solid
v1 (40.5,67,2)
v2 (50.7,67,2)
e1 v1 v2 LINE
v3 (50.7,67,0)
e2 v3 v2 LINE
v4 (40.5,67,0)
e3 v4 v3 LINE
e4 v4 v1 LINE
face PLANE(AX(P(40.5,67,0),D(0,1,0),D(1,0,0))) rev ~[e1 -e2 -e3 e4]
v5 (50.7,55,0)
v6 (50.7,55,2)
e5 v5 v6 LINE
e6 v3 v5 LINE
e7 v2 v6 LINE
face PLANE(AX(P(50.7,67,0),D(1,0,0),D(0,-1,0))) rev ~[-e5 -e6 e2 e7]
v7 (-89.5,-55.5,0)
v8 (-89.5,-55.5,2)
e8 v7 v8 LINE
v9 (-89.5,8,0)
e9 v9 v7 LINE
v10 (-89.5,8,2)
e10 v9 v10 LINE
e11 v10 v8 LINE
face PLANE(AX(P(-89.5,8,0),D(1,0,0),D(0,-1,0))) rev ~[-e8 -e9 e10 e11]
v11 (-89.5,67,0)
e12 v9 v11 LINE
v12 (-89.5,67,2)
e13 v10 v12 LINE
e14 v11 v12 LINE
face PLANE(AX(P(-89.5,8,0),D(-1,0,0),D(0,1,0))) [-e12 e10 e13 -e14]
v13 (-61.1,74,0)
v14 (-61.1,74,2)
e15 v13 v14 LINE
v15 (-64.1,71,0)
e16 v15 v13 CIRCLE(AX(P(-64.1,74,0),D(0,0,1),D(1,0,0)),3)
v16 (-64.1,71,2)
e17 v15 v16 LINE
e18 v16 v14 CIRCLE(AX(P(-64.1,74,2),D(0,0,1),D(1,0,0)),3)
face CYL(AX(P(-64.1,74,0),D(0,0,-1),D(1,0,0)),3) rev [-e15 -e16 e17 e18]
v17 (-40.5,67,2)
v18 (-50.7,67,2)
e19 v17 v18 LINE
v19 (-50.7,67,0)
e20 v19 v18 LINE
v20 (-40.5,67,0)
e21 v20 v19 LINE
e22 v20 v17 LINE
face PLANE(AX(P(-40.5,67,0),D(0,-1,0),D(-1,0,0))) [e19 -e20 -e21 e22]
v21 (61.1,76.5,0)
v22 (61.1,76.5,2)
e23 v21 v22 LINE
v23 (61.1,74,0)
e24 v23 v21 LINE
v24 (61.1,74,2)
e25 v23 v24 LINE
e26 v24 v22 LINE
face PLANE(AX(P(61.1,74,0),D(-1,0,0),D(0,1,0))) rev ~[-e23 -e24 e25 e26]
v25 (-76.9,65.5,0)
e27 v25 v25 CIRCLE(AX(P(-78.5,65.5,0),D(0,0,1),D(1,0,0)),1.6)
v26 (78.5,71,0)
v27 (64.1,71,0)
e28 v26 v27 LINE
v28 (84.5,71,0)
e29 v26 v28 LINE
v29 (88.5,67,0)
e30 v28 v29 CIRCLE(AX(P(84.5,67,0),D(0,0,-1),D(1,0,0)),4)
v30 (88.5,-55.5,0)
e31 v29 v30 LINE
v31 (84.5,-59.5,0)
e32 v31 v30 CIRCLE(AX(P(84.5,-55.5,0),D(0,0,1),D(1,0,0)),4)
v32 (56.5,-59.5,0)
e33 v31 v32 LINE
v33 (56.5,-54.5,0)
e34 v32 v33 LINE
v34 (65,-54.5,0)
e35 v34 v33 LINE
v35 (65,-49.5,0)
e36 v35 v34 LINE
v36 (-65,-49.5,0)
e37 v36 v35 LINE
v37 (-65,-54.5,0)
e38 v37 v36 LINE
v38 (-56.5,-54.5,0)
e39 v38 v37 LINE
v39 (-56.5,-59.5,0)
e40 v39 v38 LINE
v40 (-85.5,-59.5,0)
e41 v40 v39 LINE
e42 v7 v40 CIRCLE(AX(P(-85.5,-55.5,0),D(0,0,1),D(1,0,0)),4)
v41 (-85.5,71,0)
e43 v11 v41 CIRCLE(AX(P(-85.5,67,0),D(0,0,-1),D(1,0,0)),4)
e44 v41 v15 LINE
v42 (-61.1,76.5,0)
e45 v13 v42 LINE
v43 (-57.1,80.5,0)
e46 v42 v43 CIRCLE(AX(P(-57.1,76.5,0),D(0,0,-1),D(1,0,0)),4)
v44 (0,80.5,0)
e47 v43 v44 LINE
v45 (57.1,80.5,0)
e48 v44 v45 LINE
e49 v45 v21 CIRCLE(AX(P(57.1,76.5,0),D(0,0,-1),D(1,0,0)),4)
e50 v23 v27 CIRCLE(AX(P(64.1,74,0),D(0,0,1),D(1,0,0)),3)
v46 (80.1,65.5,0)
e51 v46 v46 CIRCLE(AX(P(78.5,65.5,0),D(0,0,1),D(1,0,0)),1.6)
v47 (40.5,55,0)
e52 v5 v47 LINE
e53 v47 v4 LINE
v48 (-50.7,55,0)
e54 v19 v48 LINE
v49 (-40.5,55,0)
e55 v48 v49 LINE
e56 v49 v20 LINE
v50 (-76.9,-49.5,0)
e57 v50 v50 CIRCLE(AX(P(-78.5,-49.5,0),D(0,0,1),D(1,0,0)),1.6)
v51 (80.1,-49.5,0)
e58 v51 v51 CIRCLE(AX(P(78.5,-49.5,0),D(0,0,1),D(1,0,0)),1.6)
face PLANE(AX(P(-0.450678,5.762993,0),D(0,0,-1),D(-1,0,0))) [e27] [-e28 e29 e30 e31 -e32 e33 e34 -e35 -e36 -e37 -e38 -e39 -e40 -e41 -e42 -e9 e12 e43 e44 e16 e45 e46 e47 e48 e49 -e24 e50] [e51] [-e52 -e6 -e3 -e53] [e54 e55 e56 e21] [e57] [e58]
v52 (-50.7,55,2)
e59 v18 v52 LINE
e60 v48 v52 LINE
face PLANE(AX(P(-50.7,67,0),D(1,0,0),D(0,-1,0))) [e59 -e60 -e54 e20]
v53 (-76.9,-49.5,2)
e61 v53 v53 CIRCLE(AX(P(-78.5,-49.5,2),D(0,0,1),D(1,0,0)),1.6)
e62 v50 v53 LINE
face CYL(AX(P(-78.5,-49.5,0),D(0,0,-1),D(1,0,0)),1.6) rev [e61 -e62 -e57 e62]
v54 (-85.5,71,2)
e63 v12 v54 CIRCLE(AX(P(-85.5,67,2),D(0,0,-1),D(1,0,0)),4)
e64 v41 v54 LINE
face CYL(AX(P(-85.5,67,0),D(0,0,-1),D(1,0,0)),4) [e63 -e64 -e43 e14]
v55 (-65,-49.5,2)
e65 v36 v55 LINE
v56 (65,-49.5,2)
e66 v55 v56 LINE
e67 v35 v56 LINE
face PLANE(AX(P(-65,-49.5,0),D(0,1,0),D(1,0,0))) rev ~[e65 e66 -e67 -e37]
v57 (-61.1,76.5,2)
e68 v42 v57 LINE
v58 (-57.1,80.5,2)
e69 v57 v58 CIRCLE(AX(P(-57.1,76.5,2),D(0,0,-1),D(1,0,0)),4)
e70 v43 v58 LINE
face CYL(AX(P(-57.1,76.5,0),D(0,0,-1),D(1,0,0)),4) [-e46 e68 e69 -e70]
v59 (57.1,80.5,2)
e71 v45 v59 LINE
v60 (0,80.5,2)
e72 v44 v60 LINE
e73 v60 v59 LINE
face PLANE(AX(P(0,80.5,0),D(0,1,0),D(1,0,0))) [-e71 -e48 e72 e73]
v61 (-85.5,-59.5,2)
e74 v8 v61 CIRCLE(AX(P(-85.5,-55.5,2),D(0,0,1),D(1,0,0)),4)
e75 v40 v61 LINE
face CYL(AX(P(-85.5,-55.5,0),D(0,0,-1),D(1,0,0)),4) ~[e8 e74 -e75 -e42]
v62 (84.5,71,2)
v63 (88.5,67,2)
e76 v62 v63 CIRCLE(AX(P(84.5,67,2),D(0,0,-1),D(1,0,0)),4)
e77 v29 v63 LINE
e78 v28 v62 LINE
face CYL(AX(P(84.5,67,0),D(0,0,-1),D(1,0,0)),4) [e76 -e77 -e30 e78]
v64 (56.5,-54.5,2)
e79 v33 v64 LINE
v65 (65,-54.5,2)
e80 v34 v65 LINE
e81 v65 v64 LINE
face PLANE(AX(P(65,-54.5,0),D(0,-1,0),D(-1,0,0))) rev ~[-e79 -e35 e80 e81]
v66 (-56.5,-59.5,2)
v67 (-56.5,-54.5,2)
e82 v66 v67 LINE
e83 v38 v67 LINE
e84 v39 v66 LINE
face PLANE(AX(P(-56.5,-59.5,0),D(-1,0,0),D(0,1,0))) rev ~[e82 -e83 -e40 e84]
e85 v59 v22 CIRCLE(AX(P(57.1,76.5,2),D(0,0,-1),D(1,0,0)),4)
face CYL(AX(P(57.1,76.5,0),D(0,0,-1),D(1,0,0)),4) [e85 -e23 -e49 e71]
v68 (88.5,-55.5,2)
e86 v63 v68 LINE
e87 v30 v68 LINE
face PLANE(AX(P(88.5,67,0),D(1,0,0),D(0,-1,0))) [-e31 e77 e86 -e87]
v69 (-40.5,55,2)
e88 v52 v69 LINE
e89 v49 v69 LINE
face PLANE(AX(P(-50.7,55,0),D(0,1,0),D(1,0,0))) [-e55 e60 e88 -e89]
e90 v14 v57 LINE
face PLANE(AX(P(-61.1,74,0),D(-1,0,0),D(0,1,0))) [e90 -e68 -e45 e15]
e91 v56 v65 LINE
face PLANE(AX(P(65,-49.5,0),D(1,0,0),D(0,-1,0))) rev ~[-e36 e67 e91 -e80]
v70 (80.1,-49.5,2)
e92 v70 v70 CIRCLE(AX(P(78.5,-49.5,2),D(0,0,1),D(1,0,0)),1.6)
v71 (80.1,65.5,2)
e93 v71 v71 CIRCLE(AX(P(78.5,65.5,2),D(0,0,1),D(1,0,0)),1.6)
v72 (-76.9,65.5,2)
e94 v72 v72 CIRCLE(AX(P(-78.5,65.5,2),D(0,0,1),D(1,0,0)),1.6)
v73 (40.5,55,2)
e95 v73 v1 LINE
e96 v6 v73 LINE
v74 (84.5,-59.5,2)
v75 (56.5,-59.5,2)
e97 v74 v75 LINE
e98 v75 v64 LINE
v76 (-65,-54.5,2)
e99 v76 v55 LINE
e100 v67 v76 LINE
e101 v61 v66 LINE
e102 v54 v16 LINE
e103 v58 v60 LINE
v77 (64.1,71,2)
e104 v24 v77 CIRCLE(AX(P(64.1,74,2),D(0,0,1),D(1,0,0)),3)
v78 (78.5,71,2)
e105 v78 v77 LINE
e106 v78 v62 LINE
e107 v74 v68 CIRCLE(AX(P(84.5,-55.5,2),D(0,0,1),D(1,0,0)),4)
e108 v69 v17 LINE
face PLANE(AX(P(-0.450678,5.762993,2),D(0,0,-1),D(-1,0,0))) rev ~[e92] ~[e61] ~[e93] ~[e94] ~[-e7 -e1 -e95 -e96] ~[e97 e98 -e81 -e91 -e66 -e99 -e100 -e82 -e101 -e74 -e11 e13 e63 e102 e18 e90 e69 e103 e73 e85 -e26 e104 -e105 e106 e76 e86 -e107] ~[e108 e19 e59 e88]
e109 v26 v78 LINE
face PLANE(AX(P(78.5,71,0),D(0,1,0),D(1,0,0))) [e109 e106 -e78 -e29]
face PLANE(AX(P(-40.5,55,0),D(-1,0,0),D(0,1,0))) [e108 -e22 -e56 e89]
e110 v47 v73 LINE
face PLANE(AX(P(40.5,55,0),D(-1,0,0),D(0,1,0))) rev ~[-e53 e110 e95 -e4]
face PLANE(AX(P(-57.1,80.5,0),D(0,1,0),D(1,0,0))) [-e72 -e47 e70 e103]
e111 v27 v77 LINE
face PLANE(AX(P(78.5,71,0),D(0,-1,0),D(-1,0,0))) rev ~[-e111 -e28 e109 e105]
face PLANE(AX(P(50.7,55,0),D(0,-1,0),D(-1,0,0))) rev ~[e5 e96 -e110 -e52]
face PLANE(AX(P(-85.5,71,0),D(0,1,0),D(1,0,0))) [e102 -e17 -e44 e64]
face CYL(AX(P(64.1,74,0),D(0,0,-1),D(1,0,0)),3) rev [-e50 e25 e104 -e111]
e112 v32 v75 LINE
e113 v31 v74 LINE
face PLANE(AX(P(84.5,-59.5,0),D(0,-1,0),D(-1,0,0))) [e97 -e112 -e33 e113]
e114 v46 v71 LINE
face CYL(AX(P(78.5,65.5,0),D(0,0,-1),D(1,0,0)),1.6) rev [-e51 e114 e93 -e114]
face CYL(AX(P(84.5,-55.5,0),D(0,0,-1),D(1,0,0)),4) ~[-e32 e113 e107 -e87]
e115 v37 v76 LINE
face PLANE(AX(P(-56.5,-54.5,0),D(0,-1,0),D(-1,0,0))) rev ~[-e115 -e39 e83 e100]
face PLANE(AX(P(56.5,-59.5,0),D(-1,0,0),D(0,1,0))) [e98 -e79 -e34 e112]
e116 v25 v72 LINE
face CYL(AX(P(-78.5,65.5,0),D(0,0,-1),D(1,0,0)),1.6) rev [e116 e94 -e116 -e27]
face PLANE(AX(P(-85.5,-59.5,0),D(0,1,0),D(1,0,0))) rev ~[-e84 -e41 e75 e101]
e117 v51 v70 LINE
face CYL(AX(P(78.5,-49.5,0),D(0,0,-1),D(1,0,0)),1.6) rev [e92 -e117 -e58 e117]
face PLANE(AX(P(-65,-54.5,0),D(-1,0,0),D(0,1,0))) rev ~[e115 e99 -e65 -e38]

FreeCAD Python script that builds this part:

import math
import FreeCAD as App
import Part
import Sketcher
from FreeCAD import Vector

doc = App.newDocument("Part")
body = doc.addObject("PartDesign::Body", "Body")

sketch1 = body.newObject("Sketcher::SketchObject", "Sketch")
sketch1.AttachmentSupport = (doc.getObject("XY_Plane"), [""])
sketch1.MapMode = "FlatFace"
sketch1.addGeometry([
    Part.ArcOfCircle(Part.Circle(Vector(-64.1, 74, 0), Vector(0, 0, 1), 3), math.radians(-90), math.radians(0)),
    Part.LineSegment(Vector(-64.1, 71, 0), Vector(-85.5, 71, 0)),
    Part.ArcOfCircle(Part.Circle(Vector(-85.5, 67, 0), Vector(0, 0, 1), 4), math.radians(90), math.radians(180)),
    Part.LineSegment(Vector(-89.5, 67, 0), Vector(-89.5, -55.5, 0)),
    Part.ArcOfCircle(Part.Circle(Vector(-85.5, -55.5, 0), Vector(0, 0, 1), 4), math.radians(180), math.radians(270)),
    Part.LineSegment(Vector(-85.5, -59.5, 0), Vector(-56.5, -59.5, 0)),
    Part.LineSegment(Vector(-56.5, -59.5, 0), Vector(-56.5, -54.5, 0)),
    Part.LineSegment(Vector(-56.5, -54.5, 0), Vector(-65, -54.5, 0)),
    Part.LineSegment(Vector(-65, -54.5, 0), Vector(-65, -49.5, 0)),
    Part.LineSegment(Vector(-65, -49.5, 0), Vector(65, -49.5, 0)),
    Part.LineSegment(Vector(65, -49.5, 0), Vector(65, -54.5, 0)),
    Part.LineSegment(Vector(65, -54.5, 0), Vector(56.5, -54.5, 0)),
    Part.LineSegment(Vector(56.5, -54.5, 0), Vector(56.5, -59.5, 0)),
    Part.LineSegment(Vector(56.5, -59.5, 0), Vector(84.5, -59.5, 0)),
    Part.ArcOfCircle(Part.Circle(Vector(84.5, -55.5, 0), Vector(0, 0, 1), 4), math.radians(-90), math.radians(0)),
    Part.LineSegment(Vector(88.5, -55.5, 0), Vector(88.5, 67, 0)),
    Part.ArcOfCircle(Part.Circle(Vector(84.5, 67, 0), Vector(0, 0, 1), 4), math.radians(0), math.radians(90)),
    Part.LineSegment(Vector(84.5, 71, 0), Vector(64.1, 71, 0)),
    Part.ArcOfCircle(Part.Circle(Vector(64.1, 74, 0), Vector(0, 0, 1), 3), math.radians(180), math.radians(270)),
    Part.LineSegment(Vector(61.1, 74, 0), Vector(61.1, 76.5, 0)),
    Part.ArcOfCircle(Part.Circle(Vector(57.1, 76.5, 0), Vector(0, 0, 1), 4), math.radians(0), math.radians(90)),
    Part.LineSegment(Vector(57.1, 80.5, 0), Vector(-57.1, 80.5, 0)),
    Part.ArcOfCircle(Part.Circle(Vector(-57.1, 76.5, 0), Vector(0, 0, 1), 4), math.radians(90), math.radians(180)),
    Part.LineSegment(Vector(-61.1, 76.5, 0), Vector(-61.1, 74, 0)),
    Part.Circle(Vector(-78.5, -49.5, 0), Vector(0, 0, 1), 1.6),
    Part.Circle(Vector(78.5, -49.5, 0), Vector(0, 0, 1), 1.6),
    Part.LineSegment(Vector(-40.5, 55, 0), Vector(-50.7, 55, 0)),
    Part.LineSegment(Vector(-50.7, 55, 0), Vector(-50.7, 67, 0)),
    Part.LineSegment(Vector(-50.7, 67, 0), Vector(-40.5, 67, 0)),
    Part.LineSegment(Vector(-40.5, 67, 0), Vector(-40.5, 55, 0)),
    Part.Circle(Vector(-78.5, 65.5, 0), Vector(0, 0, 1), 1.6),
    Part.LineSegment(Vector(50.7, 67, 0), Vector(50.7, 55, 0)),
    Part.LineSegment(Vector(50.7, 55, 0), Vector(40.5, 55, 0)),
    Part.LineSegment(Vector(40.5, 55, 0), Vector(40.5, 67, 0)),
    Part.LineSegment(Vector(40.5, 67, 0), Vector(50.7, 67, 0)),
    Part.Circle(Vector(78.5, 65.5, 0), Vector(0, 0, 1), 1.6),
], False)
sketch1.addConstraint([
    Sketcher.Constraint("Tangent", 0, 1, 1, 1),
    Sketcher.Constraint("Tangent", 1, 2, 2, 1),
    Sketcher.Constraint("Tangent", 2, 2, 3, 1),
    Sketcher.Constraint("Tangent", 3, 2, 4, 1),
    Sketcher.Constraint("Tangent", 4, 2, 5, 1),
    Sketcher.Constraint("Coincident", 5, 2, 6, 1),
    Sketcher.Constraint("Coincident", 6, 2, 7, 1),
    Sketcher.Constraint("Coincident", 7, 2, 8, 1),
    Sketcher.Constraint("Coincident", 8, 2, 9, 1),
    Sketcher.Constraint("Coincident", 9, 2, 10, 1),
    Sketcher.Constraint("Coincident", 10, 2, 11, 1),
    Sketcher.Constraint("Coincident", 11, 2, 12, 1),
    Sketcher.Constraint("Coincident", 12, 2, 13, 1),
    Sketcher.Constraint("Tangent", 13, 2, 14, 1),
    Sketcher.Constraint("Tangent", 14, 2, 15, 1),
    Sketcher.Constraint("Tangent", 15, 2, 16, 1),
    Sketcher.Constraint("Tangent", 16, 2, 17, 1),
    Sketcher.Constraint("Tangent", 17, 2, 18, 2),
    Sketcher.Constraint("Tangent", 18, 1, 19, 1),
    Sketcher.Constraint("Tangent", 19, 2, 20, 1),
    Sketcher.Constraint("Tangent", 20, 2, 21, 1),
    Sketcher.Constraint("Tangent", 21, 2, 22, 1),
    Sketcher.Constraint("Tangent", 22, 2, 23, 1),
    Sketcher.Constraint("Tangent", 23, 2, 0, 2),
    Sketcher.Constraint("Coincident", 26, 2, 27, 1),
    Sketcher.Constraint("Coincident", 27, 2, 28, 1),
    Sketcher.Constraint("Coincident", 28, 2, 29, 1),
    Sketcher.Constraint("Coincident", 29, 2, 26, 1),
    Sketcher.Constraint("Coincident", 31, 2, 32, 1),
    Sketcher.Constraint("Coincident", 32, 2, 33, 1),
    Sketcher.Constraint("Coincident", 33, 2, 34, 1),
    Sketcher.Constraint("Coincident", 34, 2, 31, 1),
    Sketcher.Constraint("Horizontal", 1),
    Sketcher.Constraint("Vertical", 3),
    Sketcher.Constraint("Horizontal", 5),
    Sketcher.Constraint("Vertical", 6),
    Sketcher.Constraint("Horizontal", 7),
    Sketcher.Constraint("Vertical", 8),
    Sketcher.Constraint("Horizontal", 9),
    Sketcher.Constraint("Vertical", 10),
    Sketcher.Constraint("Horizontal", 11),
    Sketcher.Constraint("Vertical", 12),
    Sketcher.Constraint("Horizontal", 13),
    Sketcher.Constraint("Vertical", 15),
    Sketcher.Constraint("Horizontal", 17),
    Sketcher.Constraint("Vertical", 19),
    Sketcher.Constraint("Horizontal", 21),
    Sketcher.Constraint("Vertical", 23),
    Sketcher.Constraint("Horizontal", 26),
    Sketcher.Constraint("Vertical", 27),
    Sketcher.Constraint("Horizontal", 28),
    Sketcher.Constraint("Vertical", 29),
    Sketcher.Constraint("Vertical", 31),
    Sketcher.Constraint("Horizontal", 32),
    Sketcher.Constraint("Vertical", 33),
    Sketcher.Constraint("Horizontal", 34),
    Sketcher.Constraint("Equal", 2, 4),
    Sketcher.Constraint("Equal", 4, 14),
    Sketcher.Constraint("Equal", 14, 16),
    Sketcher.Constraint("Equal", 0, 18),
    Sketcher.Constraint("Equal", 16, 20),
    Sketcher.Constraint("Equal", 20, 22),
    Sketcher.Constraint("Equal", 24, 25),
    Sketcher.Constraint("Equal", 25, 30),
    Sketcher.Constraint("Equal", 30, 35),
    Sketcher.Constraint("Symmetric", 0, 3, 18, 3, -2),
    Sketcher.Constraint("Symmetric", 24, 3, 25, 3, -2),
    Sketcher.Constraint("Symmetric", 30, 3, 35, 3, -2),
    Sketcher.Constraint("Symmetric", 7, 2, 10, 2, -2),
    Sketcher.Constraint("Symmetric", 5, 2, 12, 2, -2),
    Sketcher.Constraint("Symmetric", 26, 2, 31, 2, -2),
    Sketcher.Constraint("Symmetric", 28, 2, 33, 2, -2),
    Sketcher.Constraint("Horizontal", 25, 3, 8, 2),
    Sketcher.Constraint("Horizontal", 15, 2, 27, 2),
    Sketcher.Constraint("Vertical", 24, 3, 30, 3),
    Sketcher.Constraint("Equal", 6, 8),
    Sketcher.Constraint("Radius", 0, 3.0),
    Sketcher.Constraint("Radius", 2, 4.0),
    Sketcher.Constraint("Diameter", 24, 3.2),
    Sketcher.Constraint("DistanceX", 5, 1, 5, 2, 29.0),
    Sketcher.Constraint("DistanceX", 9, 1, 9, 2, 130.0),
    Sketcher.Constraint("DistanceX", 13, 1, 13, 2, 28.0),
    Sketcher.Constraint("DistanceY", 6, 1, 6, 2, 5.0),
    Sketcher.Constraint("DistanceY", 27, 1, 27, 2, 12.0),
    Sketcher.Constraint("DistanceX", 1, 2, 1, 1, 21.4),
    Sketcher.Constraint("DistanceX", 7, 2, 7, 1, 8.5),
    Sketcher.Constraint("DistanceX", 26, 2, 26, 1, 10.2),
    Sketcher.Constraint("DistanceY", 3, 2, 3, 1, 122.5),
    Sketcher.Constraint("DistanceY", 19, 1, 19, 2, 2.5),
    Sketcher.Constraint("DistanceY", -1, 1, 0, 3, 74.0),
    Sketcher.Constraint("DistanceX", 4, 3, 24, 3, 7.0),
    Sketcher.Constraint("DistanceY", 30, 3, 22, 3, 11.0),
    Sketcher.Constraint("DistanceX", 26, 2, -1, 1, 50.7),
])
pad1 = body.newObject("PartDesign::Pad", "Pad")
pad1.Profile = sketch1
pad1.Length = 2

doc.recompute()
